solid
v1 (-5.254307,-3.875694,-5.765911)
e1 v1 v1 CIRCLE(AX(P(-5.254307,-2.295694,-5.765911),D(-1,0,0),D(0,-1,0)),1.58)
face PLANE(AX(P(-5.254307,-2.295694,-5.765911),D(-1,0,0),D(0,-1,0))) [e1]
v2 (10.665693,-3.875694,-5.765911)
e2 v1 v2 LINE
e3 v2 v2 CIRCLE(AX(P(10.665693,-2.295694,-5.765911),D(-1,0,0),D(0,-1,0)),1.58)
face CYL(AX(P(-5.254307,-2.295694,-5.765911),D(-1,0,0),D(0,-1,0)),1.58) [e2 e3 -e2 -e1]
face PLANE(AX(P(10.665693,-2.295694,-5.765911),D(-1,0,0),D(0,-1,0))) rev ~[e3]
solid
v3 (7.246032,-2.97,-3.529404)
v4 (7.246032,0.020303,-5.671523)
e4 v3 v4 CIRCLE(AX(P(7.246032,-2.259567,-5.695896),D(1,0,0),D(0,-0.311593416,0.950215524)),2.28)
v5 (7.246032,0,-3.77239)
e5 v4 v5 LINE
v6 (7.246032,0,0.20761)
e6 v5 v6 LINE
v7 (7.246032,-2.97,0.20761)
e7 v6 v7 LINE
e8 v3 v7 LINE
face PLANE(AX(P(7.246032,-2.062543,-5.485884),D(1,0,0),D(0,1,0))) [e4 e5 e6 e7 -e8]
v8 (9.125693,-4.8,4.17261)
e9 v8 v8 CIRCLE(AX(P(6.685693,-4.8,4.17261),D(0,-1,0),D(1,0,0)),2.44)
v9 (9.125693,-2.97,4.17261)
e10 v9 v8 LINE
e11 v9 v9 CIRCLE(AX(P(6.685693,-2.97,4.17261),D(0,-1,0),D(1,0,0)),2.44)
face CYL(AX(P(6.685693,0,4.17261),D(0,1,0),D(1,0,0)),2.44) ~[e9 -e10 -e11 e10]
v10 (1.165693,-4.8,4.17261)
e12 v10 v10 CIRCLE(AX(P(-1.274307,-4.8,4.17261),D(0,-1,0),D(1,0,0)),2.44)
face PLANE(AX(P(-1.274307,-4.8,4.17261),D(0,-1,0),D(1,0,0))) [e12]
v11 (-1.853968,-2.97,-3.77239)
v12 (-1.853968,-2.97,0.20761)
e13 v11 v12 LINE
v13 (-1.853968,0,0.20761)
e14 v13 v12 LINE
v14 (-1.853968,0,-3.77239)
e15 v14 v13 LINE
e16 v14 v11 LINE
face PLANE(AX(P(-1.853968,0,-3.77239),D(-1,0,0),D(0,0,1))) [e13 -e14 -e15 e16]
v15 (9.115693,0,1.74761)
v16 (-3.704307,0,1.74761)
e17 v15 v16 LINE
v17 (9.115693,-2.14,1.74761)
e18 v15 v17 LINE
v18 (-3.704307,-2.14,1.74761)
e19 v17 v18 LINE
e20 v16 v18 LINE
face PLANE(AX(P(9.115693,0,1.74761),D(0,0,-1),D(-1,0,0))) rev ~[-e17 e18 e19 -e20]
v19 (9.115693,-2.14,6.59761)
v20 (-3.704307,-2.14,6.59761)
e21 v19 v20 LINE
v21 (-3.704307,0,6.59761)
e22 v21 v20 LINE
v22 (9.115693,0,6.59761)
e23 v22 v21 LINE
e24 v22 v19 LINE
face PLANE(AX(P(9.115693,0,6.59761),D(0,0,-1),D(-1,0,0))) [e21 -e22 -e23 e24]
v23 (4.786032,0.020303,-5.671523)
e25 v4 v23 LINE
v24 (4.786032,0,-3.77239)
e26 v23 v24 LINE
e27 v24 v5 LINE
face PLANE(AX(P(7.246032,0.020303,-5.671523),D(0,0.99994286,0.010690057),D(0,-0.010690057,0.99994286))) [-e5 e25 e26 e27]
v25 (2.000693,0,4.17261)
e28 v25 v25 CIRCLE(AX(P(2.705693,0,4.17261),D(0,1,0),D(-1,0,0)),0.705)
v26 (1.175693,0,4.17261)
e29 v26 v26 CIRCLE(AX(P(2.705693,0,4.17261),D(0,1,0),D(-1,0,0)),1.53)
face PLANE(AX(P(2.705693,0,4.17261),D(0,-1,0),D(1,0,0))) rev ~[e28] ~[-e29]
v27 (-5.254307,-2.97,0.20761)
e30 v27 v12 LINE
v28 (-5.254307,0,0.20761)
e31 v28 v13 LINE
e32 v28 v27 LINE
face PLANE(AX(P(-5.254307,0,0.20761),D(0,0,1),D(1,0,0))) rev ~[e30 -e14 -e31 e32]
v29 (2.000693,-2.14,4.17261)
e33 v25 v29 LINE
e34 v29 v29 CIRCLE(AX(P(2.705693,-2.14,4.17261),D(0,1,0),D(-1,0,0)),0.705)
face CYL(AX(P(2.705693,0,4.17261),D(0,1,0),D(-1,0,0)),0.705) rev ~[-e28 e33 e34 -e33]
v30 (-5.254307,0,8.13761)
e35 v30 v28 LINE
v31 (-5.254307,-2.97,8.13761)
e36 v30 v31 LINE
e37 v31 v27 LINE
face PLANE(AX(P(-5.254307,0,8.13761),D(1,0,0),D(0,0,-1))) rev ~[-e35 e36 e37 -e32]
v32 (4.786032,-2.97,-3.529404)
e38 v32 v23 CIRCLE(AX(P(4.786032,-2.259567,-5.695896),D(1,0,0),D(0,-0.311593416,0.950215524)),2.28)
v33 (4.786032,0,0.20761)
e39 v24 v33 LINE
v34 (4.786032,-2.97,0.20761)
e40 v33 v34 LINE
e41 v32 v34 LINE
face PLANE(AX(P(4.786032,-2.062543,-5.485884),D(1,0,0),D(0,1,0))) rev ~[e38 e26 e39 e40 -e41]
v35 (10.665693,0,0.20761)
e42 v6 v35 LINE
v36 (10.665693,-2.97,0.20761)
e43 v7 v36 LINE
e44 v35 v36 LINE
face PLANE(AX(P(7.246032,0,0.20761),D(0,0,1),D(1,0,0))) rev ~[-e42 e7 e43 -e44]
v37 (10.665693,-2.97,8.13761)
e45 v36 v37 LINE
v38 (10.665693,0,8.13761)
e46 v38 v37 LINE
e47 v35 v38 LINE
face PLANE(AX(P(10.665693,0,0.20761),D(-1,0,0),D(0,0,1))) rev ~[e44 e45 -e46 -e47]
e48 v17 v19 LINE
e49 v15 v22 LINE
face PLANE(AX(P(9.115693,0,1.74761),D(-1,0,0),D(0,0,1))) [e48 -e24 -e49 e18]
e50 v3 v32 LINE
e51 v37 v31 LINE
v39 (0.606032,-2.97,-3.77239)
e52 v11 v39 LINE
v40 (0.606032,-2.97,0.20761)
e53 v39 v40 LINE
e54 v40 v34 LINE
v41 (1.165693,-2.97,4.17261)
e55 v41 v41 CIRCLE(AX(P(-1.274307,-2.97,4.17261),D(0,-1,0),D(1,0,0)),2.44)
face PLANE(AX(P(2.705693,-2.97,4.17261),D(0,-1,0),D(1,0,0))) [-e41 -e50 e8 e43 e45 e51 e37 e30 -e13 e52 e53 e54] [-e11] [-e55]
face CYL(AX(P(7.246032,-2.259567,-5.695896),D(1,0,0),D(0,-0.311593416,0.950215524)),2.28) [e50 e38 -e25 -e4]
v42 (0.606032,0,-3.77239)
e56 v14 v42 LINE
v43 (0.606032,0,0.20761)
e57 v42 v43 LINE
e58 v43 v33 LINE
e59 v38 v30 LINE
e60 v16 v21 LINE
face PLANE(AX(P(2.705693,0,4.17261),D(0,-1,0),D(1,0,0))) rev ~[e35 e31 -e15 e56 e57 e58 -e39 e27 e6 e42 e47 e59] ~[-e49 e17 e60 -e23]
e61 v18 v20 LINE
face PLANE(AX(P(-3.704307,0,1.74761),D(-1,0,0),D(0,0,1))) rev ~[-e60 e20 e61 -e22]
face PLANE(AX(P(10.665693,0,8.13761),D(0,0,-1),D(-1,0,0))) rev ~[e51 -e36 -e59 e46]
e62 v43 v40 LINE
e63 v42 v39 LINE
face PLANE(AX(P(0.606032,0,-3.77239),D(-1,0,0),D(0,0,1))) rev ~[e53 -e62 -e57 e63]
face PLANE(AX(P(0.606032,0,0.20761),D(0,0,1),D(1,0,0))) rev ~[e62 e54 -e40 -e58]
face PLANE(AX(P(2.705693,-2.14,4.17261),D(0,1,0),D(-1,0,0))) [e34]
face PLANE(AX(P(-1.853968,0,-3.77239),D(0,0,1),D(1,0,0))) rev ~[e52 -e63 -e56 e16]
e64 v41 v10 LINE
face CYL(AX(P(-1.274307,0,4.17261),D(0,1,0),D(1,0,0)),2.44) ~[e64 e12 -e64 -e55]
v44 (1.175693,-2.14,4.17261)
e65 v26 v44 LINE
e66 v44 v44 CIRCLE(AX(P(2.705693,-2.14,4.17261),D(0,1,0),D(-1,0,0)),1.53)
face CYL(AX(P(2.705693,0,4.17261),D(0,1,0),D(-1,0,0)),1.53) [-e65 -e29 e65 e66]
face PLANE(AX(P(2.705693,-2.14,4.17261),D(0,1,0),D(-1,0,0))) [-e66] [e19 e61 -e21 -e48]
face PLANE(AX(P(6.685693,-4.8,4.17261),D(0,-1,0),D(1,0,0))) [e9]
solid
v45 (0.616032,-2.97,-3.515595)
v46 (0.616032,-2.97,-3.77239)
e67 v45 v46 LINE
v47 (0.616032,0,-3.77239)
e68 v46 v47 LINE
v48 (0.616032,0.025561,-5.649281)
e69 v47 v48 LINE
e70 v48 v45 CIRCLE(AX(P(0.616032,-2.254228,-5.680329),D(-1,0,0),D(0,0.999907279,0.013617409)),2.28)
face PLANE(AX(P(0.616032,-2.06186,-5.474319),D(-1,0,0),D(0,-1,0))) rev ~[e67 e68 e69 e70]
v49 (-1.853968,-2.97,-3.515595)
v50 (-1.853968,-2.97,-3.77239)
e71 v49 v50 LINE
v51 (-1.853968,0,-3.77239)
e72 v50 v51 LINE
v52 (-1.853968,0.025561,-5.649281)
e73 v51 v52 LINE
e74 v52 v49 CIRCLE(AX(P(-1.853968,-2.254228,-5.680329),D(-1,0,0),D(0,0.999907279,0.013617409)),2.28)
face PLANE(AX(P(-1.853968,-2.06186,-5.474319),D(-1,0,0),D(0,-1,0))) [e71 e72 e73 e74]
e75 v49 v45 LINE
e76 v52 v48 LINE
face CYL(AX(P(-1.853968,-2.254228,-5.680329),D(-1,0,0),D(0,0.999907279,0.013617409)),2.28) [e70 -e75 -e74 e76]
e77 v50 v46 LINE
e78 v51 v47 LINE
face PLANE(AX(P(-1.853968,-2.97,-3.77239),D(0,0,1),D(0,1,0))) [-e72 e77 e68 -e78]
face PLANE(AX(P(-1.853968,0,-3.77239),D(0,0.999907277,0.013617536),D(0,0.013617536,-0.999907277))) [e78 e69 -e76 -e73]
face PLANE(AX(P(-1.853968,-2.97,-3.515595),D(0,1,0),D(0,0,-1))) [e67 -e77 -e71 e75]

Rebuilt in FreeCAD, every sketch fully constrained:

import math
import FreeCAD as App
import Part
import Sketcher
from FreeCAD import Vector

doc = App.newDocument("Part")
params = doc.addObject("Spreadsheet::Sheet", "Params")
for row, (alias, value) in enumerate([
    ("sketch1_diameter", "4.88 mm"),
    ("sketch1_width", "15.92 mm"),
    ("sketch1_width2", "2.46 mm"),
    ("sketch1_width3", "4.18 mm"),
    ("sketch1_height", "7.93 mm"),
    ("pad1_length", "2.97 mm"),
    ("sketch2_diameter", "4.88 mm"),
    ("pad2_length", "4.8 mm"),
    ("sketch3_radius", "2.28 mm"),
    ("sketch3_width", "2.97 mm"),
    ("pad3_length", "2.46 mm"),
    ("sketch4_diameter", "3.06 mm"),
    ("sketch4_diameter2", "1.41 mm"),
    ("sketch4_width", "12.82 mm"),
    ("sketch4_height", "4.85 mm"),
    ("pocket1_length", "2.14 mm"),
    ("sketch5_radius", "2.28 mm"),
    ("sketch5_width", "2.97 mm"),
    ("pad4_length", "2.47 mm"),
    ("sketch6_diameter", "3.16 mm"),
    ("pad5_length", "15.92 mm"),
], start=1):
    params.set(f"A{row}", alias)
    params.set(f"B{row}", "=" + value)
    params.setAlias(f"B{row}", alias)

body = doc.addObject("PartDesign::Body", "Body")

sketch1 = doc.addObject("Sketcher::SketchObject", "Sketch")
body.addObject(sketch1)
sketch1.AttachmentSupport = (doc.XZ_Plane, [""])
sketch1.MapMode = "FlatFace"
sketch1.addGeometry(Part.LineSegment(Vector(10.7, 8.1, 0), Vector(-5.3, 8.1, 0)), False)
sketch1.addGeometry(Part.LineSegment(Vector(-5.3, 8.1, 0), Vector(-5.3, 0.2, 0)), False)
sketch1.addGeometry(Part.LineSegment(Vector(-5.3, 0.2, 0), Vector(-1.9, 0.2, 0)), False)
sketch1.addGeometry(Part.LineSegment(Vector(-1.9, 0.2, 0), Vector(-1.9, -3.8, 0)), False)
sketch1.addGeometry(Part.LineSegment(Vector(-1.9, -3.8, 0), Vector(0.6, -3.8, 0)), False)
sketch1.addGeometry(Part.LineSegment(Vector(0.6, -3.8, 0), Vector(0.6, 0.2, 0)), False)
sketch1.addGeometry(Part.LineSegment(Vector(0.6, 0.2, 0), Vector(4.8, 0.2, 0)), False)
sketch1.addGeometry(Part.LineSegment(Vector(4.8, 0.2, 0), Vector(4.8, -3.8, 0)), False)
sketch1.addGeometry(Part.LineSegment(Vector(4.8, -3.8, 0), Vector(7.2, -3.8, 0)), False)
sketch1.addGeometry(Part.LineSegment(Vector(7.2, -3.8, 0), Vector(7.2, 0.2, 0)), False)
sketch1.addGeometry(Part.LineSegment(Vector(7.2, 0.2, 0), Vector(10.7, 0.2, 0)), False)
sketch1.addGeometry(Part.LineSegment(Vector(10.7, 0.2, 0), Vector(10.7, 8.1, 0)), False)
sketch1.addGeometry(Part.Circle(Vector(-1.3, 4.2, 0), Vector(0, 0, 1), 2.4), False)
sketch1.addGeometry(Part.Circle(Vector(6.7, 4.2, 0), Vector(0, 0, 1), 2.4), False)
sketch1.addConstraint(Sketcher.Constraint("Coincident", 0, 2, 1, 1))
sketch1.addConstraint(Sketcher.Constraint("Coincident", 1, 2, 2, 1))
sketch1.addConstraint(Sketcher.Constraint("Coincident", 2, 2, 3, 1))
sketch1.addConstraint(Sketcher.Constraint("Coincident", 3, 2, 4, 1))
sketch1.addConstraint(Sketcher.Constraint("Coincident", 4, 2, 5, 1))
sketch1.addConstraint(Sketcher.Constraint("Coincident", 5, 2, 6, 1))
sketch1.addConstraint(Sketcher.Constraint("Coincident", 6, 2, 7, 1))
sketch1.addConstraint(Sketcher.Constraint("Coincident", 7, 2, 8, 1))
sketch1.addConstraint(Sketcher.Constraint("Coincident", 8, 2, 9, 1))
sketch1.addConstraint(Sketcher.Constraint("Coincident", 9, 2, 10, 1))
sketch1.addConstraint(Sketcher.Constraint("Coincident", 10, 2, 11, 1))
sketch1.addConstraint(Sketcher.Constraint("Coincident", 11, 2, 0, 1))
sketch1.addConstraint(Sketcher.Constraint("Horizontal", 0))
sketch1.addConstraint(Sketcher.Constraint("Vertical", 1))
sketch1.addConstraint(Sketcher.Constraint("Horizontal", 2))
sketch1.addConstraint(Sketcher.Constraint("Vertical", 3))
sketch1.addConstraint(Sketcher.Constraint("Horizontal", 4))
sketch1.addConstraint(Sketcher.Constraint("Vertical", 5))
sketch1.addConstraint(Sketcher.Constraint("Horizontal", 6))
sketch1.addConstraint(Sketcher.Constraint("Vertical", 7))
sketch1.addConstraint(Sketcher.Constraint("Horizontal", 8))
sketch1.addConstraint(Sketcher.Constraint("Vertical", 9))
sketch1.addConstraint(Sketcher.Constraint("Horizontal", 10))
sketch1.addConstraint(Sketcher.Constraint("Vertical", 11))
sketch1.addConstraint(Sketcher.Constraint("Equal", 12, 13))
sketch1.addConstraint(Sketcher.Constraint("Horizontal", 12, 3, 13, 3))
sketch1.addConstraint(Sketcher.Constraint("Horizontal", 2, 2, 5, 2))
sketch1.addConstraint(Sketcher.Constraint("Horizontal", 4, 2, 7, 2))
sketch1.addConstraint(Sketcher.Constraint("Horizontal", 6, 2, 9, 2))
sketch1.addConstraint(Sketcher.Constraint("Equal", 4, 8))
sketch1.addConstraint(Sketcher.Constraint("Diameter", 12, 4.88))
sketch1.addConstraint(Sketcher.Constraint("DistanceX", 0, 2, 0, 1, 15.92))
sketch1.addConstraint(Sketcher.Constraint("DistanceX", 4, 1, 4, 2, 2.46))
sketch1.addConstraint(Sketcher.Constraint("DistanceX", 6, 1, 6, 2, 4.18))
sketch1.addConstraint(Sketcher.Constraint("DistanceY", 1, 2, 1, 1, 7.93))
sketch1.addConstraint(Sketcher.Constraint("DistanceY", 3, 2, 3, 1, 3.98))
sketch1.addConstraint(Sketcher.Constraint("DistanceX", 12, 3, 13, 3, 7.96))
sketch1.addConstraint(Sketcher.Constraint("DistanceX", 0, 2, 12, 3, 3.98))
sketch1.addConstraint(Sketcher.Constraint("DistanceY", 12, 3, 0, 2, 3.965))
sketch1.addConstraint(Sketcher.Constraint("DistanceX", 2, 1, 2, 2, 3.400339))
sketch1.addConstraint(Sketcher.Constraint("DistanceY", -1, 1, 12, 3, 4.17261))
sketch1.addConstraint(Sketcher.Constraint("DistanceX", 2, 2, -1, 1, 1.853968))
sketch1.setExpression("Constraints[30]", "Params.sketch1_diameter")
sketch1.setExpression("Constraints[31]", "Params.sketch1_width")
sketch1.setExpression("Constraints[32]", "Params.sketch1_width2")
sketch1.setExpression("Constraints[33]", "Params.sketch1_width3")
sketch1.setExpression("Constraints[34]", "Params.sketch1_height")
pad1 = doc.addObject("PartDesign::Pad", "Pad")
body.addObject(pad1)
pad1.Profile = sketch1
pad1.setExpression("Length", "Params.pad1_length")

sketch2 = doc.addObject("Sketcher::SketchObject", "Sketch001")
body.addObject(sketch2)
sketch2.AttachmentSupport = (doc.XZ_Plane, [""])
sketch2.MapMode = "FlatFace"
sketch2.addGeometry(Part.Circle(Vector(-1.3, 4.2, 0), Vector(0, 0, 1), 2.4), False)
sketch2.addGeometry(Part.Circle(Vector(6.7, 4.2, 0), Vector(0, 0, 1), 2.4), False)
sketch2.addConstraint(Sketcher.Constraint("Equal", 0, 1))
sketch2.addConstraint(Sketcher.Constraint("Horizontal", 0, 3, 1, 3))
sketch2.addConstraint(Sketcher.Constraint("Diameter", 0, 4.88))
sketch2.addConstraint(Sketcher.Constraint("DistanceX", 0, 3, 1, 3, 7.96))
sketch2.addConstraint(Sketcher.Constraint("DistanceY", -1, 1, 0, 3, 4.17261))
sketch2.addConstraint(Sketcher.Constraint("DistanceX", 0, 3, -1, 1, 1.274307))
sketch2.setExpression("Constraints[2]", "Params.sketch2_diameter")
pad2 = doc.addObject("PartDesign::Pad", "Pad001")
body.addObject(pad2)
pad2.Profile = sketch2
pad2.setExpression("Length", "Params.pad2_length")

sketch3 = doc.addObject("Sketcher::SketchObject", "Sketch002")
body.addObject(sketch3)
sketch3.AttachmentSupport = (doc.YZ_Plane, [""])
sketch3.MapMode = "FlatFace"
sketch3.AttachmentOffset = App.Placement(Vector(0, 0, 7.246032), App.Rotation())
sketch3.addGeometry(Part.LineSegment(Vector(-2.97, -3.77, 0), Vector(-2.97, -3.53, 0)), False)
sketch3.addGeometry(Part.ArcOfCircle(Part.Circle(Vector(-2.26, -5.7, 0), Vector(0, 0, 1), 2.28), math.radians(108), math.radians(361)), False)
sketch3.addGeometry(Part.LineSegment(Vector(0.02, -5.67, 0), Vector(0, -3.77, 0)), False)
sketch3.addGeometry(Part.LineSegment(Vector(0, -3.77, 0), Vector(-2.97, -3.77, 0)), False)
sketch3.addConstraint(Sketcher.Constraint("Coincident", 0, 2, 1, 1))
sketch3.addConstraint(Sketcher.Constraint("Tangent", 1, 2, 2, 1))
sketch3.addConstraint(Sketcher.Constraint("Coincident", 2, 2, 3, 1))
sketch3.addConstraint(Sketcher.Constraint("Coincident", 3, 2, 0, 1))
sketch3.addConstraint(Sketcher.Constraint("Vertical", 0))
sketch3.addConstraint(Sketcher.Constraint("Horizontal", 3))
sketch3.addConstraint(Sketcher.Constraint("PointOnObject", 2, 2, -2))
sketch3.addConstraint(Sketcher.Constraint("Radius", 1, 2.28))
sketch3.addConstraint(Sketcher.Constraint("DistanceX", 3, 2, 3, 1, 2.97))
sketch3.addConstraint(Sketcher.Constraint("Distance", 2, 1.899242))
sketch3.addConstraint(Sketcher.Constraint("DistanceY", 0, 1, 0, 2, 0.242986))
sketch3.addConstraint(Sketcher.Constraint("DistanceY", 2, 2, -1, 1, 3.77239))
sketch3.setExpression("Constraints[7]", "Params.sketch3_radius")
sketch3.setExpression("Constraints[8]", "Params.sketch3_width")
pad3 = doc.addObject("PartDesign::Pad", "Pad002")
body.addObject(pad3)
pad3.Profile = sketch3
pad3.setExpression("Length", "Params.pad3_length")
pad3.Reversed = True

sketch4 = doc.addObject("Sketcher::SketchObject", "Sketch003")
body.addObject(sketch4)
sketch4.AttachmentSupport = (doc.XZ_Plane, [""])
sketch4.MapMode = "FlatFace"
sketch4.addGeometry(Part.LineSegment(Vector(9.1, 6.6, 0), Vector(9.1, 1.7, 0)), False)
sketch4.addGeometry(Part.LineSegment(Vector(9.1, 1.7, 0), Vector(-3.7, 1.7, 0)), False)
sketch4.addGeometry(Part.LineSegment(Vector(-3.7, 1.7, 0), Vector(-3.7, 6.6, 0)), False)
sketch4.addGeometry(Part.LineSegment(Vector(-3.7, 6.6, 0), Vector(9.1, 6.6, 0)), False)
sketch4.addGeometry(Part.Circle(Vector(2.7, 4.2, 0), Vector(0, 0, 1), 1.5), False)
sketch4.addGeometry(Part.Circle(Vector(2.7, 4.2, 0), Vector(0, 0, 1), 0.7), False)
sketch4.addConstraint(Sketcher.Constraint("Coincident", 0, 2, 1, 1))
sketch4.addConstraint(Sketcher.Constraint("Coincident", 1, 2, 2, 1))
sketch4.addConstraint(Sketcher.Constraint("Coincident", 2, 2, 3, 1))
sketch4.addConstraint(Sketcher.Constraint("Coincident", 3, 2, 0, 1))
sketch4.addConstraint(Sketcher.Constraint("Vertical", 0))
sketch4.addConstraint(Sketcher.Constraint("Horizontal", 1))
sketch4.addConstraint(Sketcher.Constraint("Vertical", 2))
sketch4.addConstraint(Sketcher.Constraint("Horizontal", 3))
sketch4.addConstraint(Sketcher.Constraint("Coincident", 5, 3, 4, 3))
sketch4.addConstraint(Sketcher.Constraint("Diameter", 4, 3.06))
sketch4.addConstraint(Sketcher.Constraint("Diameter", 5, 1.41))
sketch4.addConstraint(Sketcher.Constraint("DistanceX", 1, 2, 1, 1, 12.82))
sketch4.addConstraint(Sketcher.Constraint("DistanceY", 0, 2, 0, 1, 4.85))
sketch4.addConstraint(Sketcher.Constraint("DistanceX", 4, 3, 0, 2, 6.41))
sketch4.addConstraint(Sketcher.Constraint("DistanceY", 0, 2, 4, 3, 2.425))
sketch4.addConstraint(Sketcher.Constraint("DistanceY", -1, 1, 4, 3, 4.17261))
sketch4.addConstraint(Sketcher.Constraint("DistanceX", -1, 1, 4, 3, 2.705693))
sketch4.setExpression("Constraints[9]", "Params.sketch4_diameter")
sketch4.setExpression("Constraints[10]", "Params.sketch4_diameter2")
sketch4.setExpression("Constraints[11]", "Params.sketch4_width")
sketch4.setExpression("Constraints[12]", "Params.sketch4_height")
pocket1 = doc.addObject("PartDesign::Pocket", "Pocket")
body.addObject(pocket1)
pocket1.Profile = sketch4
pocket1.setExpression("Length", "Params.pocket1_length")
pocket1.Reversed = True
body2 = doc.addObject("PartDesign::Body", "Body001")

sketch5 = doc.addObject("Sketcher::SketchObject", "Sketch004")
body2.addObject(sketch5)
sketch5.AttachmentSupport = (doc.getObject("YZ_Plane001"), [""])
sketch5.MapMode = "FlatFace"
sketch5.AttachmentOffset = App.Placement(Vector(0, 0, -1.853968), App.Rotation())
sketch5.addGeometry(Part.LineSegment(Vector(0, -3.77, 0), Vector(0.03, -5.65, 0)), False)
sketch5.addGeometry(Part.ArcOfCircle(Part.Circle(Vector(-2.25, -5.68, 0), Vector(0, 0, 1), 2.28), math.radians(108), math.radians(361)), False)
sketch5.addGeometry(Part.LineSegment(Vector(-2.97, -3.52, 0), Vector(-2.97, -3.77, 0)), False)
sketch5.addGeometry(Part.LineSegment(Vector(-2.97, -3.77, 0), Vector(0, -3.77, 0)), False)
sketch5.addConstraint(Sketcher.Constraint("Tangent", 0, 2, 1, 2))
sketch5.addConstraint(Sketcher.Constraint("Coincident", 1, 1, 2, 1))
sketch5.addConstraint(Sketcher.Constraint("Coincident", 2, 2, 3, 1))
sketch5.addConstraint(Sketcher.Constraint("Coincident", 3, 2, 0, 1))
sketch5.addConstraint(Sketcher.Constraint("Vertical", 2))
sketch5.addConstraint(Sketcher.Constraint("Horizontal", 3))
sketch5.addConstraint(Sketcher.Constraint("PointOnObject", 3, 2, -2))
sketch5.addConstraint(Sketcher.Constraint("Radius", 1, 2.28))
sketch5.addConstraint(Sketcher.Constraint("DistanceX", 3, 1, 3, 2, 2.97))
sketch5.addConstraint(Sketcher.Constraint("DistanceY", 2, 2, 2, 1, 0.256795))
sketch5.addConstraint(Sketcher.Constraint("DistanceY", 1, 3, -1, 1, 5.680329))
sketch5.addConstraint(Sketcher.Constraint("DistanceX", -1, 1, 0, 2, 0.025561))
sketch5.setExpression("Constraints[7]", "Params.sketch5_radius")
sketch5.setExpression("Constraints[8]", "Params.sketch5_width")
pad4 = doc.addObject("PartDesign::Pad", "Pad003")
body2.addObject(pad4)
pad4.Profile = sketch5
pad4.setExpression("Length", "Params.pad4_length")
body3 = doc.addObject("PartDesign::Body", "Body002")

sketch6 = doc.addObject("Sketcher::SketchObject", "Sketch005")
body3.addObject(sketch6)
sketch6.AttachmentSupport = (doc.getObject("YZ_Plane002"), [""])
sketch6.MapMode = "FlatFace"
sketch6.AttachmentOffset = App.Placement(Vector(0, 0, -5.254307), App.Rotation())
sketch6.addGeometry(Part.Circle(Vector(-2.3, -5.8, 0), Vector(0, 0, 1), 1.6), False)
sketch6.addConstraint(Sketcher.Constraint("Diameter", 0, 3.16))
sketch6.addConstraint(Sketcher.Constraint("DistanceY", 0, 3, -1, 1, 5.765911))
sketch6.addConstraint(Sketcher.Constraint("DistanceX", 0, 3, -1, 1, 2.295694))
sketch6.setExpression("Constraints[0]", "Params.sketch6_diameter")
pad5 = doc.addObject("PartDesign::Pad", "Pad004")
body3.addObject(pad5)
pad5.Profile = sketch6
pad5.setExpression("Length", "Params.pad5_length")

doc.recompute()
